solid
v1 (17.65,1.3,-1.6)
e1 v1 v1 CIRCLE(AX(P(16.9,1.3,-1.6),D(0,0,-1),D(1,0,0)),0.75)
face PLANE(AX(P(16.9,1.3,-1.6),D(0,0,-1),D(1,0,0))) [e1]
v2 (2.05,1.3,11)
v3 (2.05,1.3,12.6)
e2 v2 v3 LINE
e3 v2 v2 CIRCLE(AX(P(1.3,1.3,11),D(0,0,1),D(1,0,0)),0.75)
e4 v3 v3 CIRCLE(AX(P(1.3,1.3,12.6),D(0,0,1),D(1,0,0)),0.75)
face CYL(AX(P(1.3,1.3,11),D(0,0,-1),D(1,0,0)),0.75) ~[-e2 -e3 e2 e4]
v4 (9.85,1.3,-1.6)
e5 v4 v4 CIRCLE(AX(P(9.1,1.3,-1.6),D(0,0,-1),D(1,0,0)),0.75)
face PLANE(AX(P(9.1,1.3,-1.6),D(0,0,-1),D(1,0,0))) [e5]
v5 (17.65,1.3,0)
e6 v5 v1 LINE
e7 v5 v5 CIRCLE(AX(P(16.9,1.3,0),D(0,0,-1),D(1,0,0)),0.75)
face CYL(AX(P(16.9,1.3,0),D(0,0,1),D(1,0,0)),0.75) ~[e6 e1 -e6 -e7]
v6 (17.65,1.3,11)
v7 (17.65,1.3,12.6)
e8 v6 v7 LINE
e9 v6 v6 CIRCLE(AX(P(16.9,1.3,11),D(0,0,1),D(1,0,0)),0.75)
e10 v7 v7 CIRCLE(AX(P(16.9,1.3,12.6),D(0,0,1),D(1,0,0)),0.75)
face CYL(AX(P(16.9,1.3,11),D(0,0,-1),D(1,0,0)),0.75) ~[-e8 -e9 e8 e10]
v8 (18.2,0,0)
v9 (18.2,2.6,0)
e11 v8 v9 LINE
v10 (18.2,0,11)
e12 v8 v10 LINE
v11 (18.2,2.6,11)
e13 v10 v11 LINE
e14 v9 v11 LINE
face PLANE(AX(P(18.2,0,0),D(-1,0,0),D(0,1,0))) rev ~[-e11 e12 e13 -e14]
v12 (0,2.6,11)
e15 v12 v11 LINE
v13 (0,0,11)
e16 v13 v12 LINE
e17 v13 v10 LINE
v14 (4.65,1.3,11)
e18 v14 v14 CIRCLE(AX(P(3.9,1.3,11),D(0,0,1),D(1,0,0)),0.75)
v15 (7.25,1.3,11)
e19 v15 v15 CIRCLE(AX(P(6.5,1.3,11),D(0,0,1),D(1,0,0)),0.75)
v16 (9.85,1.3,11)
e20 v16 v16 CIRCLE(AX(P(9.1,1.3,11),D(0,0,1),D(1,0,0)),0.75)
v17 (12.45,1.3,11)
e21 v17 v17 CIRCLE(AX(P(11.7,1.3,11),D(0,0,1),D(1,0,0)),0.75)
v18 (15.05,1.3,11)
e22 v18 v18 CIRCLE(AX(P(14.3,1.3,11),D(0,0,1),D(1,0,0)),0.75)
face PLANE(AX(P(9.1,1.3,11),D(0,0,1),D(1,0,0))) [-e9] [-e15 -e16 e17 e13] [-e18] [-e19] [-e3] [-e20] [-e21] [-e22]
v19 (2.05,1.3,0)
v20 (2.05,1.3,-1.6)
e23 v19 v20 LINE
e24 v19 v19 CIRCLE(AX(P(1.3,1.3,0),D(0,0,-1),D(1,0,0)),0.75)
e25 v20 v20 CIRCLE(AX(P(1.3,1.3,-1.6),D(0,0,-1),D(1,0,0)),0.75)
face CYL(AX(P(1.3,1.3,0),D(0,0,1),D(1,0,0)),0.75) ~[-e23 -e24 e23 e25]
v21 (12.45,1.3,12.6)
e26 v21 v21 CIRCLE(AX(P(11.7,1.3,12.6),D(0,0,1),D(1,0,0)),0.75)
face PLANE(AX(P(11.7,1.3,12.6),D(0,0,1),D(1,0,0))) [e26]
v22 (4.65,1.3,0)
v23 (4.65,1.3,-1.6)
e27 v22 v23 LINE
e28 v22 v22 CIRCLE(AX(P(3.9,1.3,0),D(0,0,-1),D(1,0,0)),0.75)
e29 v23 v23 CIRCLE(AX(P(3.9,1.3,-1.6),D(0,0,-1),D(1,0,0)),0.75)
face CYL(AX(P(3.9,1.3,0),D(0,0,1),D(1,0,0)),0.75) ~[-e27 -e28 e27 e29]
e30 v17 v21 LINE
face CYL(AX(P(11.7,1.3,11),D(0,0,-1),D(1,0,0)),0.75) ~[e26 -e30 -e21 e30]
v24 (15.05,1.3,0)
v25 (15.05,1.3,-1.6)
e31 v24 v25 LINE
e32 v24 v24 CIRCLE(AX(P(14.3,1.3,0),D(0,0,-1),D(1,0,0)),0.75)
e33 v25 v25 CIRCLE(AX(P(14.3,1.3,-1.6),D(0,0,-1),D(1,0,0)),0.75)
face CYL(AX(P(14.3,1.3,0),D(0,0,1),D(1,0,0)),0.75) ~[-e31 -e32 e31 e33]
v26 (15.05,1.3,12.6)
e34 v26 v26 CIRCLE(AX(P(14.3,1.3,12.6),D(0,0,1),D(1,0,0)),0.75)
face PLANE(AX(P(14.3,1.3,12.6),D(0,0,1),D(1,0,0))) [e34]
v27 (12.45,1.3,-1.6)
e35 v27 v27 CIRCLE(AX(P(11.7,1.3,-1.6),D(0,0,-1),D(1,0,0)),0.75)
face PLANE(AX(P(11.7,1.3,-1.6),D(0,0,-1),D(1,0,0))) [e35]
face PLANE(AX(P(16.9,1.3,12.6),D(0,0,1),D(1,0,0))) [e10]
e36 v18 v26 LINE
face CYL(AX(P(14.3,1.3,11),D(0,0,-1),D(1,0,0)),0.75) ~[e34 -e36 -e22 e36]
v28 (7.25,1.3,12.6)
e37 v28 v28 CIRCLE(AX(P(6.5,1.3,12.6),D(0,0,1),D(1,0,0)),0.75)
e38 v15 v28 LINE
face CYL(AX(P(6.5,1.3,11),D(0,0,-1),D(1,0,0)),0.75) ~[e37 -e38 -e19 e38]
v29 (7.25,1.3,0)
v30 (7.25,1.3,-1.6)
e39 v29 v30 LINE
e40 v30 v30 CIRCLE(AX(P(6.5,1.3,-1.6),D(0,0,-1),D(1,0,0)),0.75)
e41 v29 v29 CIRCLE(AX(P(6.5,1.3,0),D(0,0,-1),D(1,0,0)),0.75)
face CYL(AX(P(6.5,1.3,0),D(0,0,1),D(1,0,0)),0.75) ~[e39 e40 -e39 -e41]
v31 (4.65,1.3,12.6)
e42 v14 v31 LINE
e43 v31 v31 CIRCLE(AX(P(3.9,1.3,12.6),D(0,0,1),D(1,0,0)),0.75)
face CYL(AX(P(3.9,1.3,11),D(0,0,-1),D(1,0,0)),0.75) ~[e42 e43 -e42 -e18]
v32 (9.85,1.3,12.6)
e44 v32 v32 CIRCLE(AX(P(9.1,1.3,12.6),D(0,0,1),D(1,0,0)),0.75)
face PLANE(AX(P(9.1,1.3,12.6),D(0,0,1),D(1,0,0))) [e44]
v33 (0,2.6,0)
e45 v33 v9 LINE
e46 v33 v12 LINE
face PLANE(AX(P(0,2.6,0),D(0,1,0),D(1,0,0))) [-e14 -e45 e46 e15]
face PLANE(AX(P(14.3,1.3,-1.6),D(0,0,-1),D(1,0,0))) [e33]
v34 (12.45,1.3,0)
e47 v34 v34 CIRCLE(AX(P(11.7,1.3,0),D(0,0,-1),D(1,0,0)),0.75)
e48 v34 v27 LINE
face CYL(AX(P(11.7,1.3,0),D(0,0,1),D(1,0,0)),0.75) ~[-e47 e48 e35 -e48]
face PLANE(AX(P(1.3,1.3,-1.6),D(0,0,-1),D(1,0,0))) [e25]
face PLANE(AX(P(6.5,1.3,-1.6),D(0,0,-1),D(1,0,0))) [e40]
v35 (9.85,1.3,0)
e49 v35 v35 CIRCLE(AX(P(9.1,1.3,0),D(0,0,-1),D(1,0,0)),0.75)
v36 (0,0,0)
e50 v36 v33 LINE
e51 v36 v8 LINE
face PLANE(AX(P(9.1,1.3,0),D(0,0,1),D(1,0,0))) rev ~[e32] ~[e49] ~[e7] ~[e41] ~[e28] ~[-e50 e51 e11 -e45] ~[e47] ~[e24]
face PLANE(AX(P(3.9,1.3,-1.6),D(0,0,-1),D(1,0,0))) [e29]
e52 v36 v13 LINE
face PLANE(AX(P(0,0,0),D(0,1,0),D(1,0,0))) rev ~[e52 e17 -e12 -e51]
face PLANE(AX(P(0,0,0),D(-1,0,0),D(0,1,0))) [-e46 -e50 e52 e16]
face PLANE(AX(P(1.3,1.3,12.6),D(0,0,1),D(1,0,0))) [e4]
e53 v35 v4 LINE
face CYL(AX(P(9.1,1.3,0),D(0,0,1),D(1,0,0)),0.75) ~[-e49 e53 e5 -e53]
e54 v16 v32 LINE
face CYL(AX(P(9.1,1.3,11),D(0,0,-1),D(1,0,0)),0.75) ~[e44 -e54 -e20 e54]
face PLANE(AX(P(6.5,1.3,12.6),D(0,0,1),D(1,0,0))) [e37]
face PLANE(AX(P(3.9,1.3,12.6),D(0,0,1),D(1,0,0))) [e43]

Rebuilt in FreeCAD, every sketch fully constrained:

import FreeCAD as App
import Part
import Sketcher
from FreeCAD import Vector


def add_polygon(sketch, points):
    """Adds a closed chain of lines whose ends are joined by coincident constraints."""
    first, n = sketch.GeometryCount, len(points)
    for a, b in zip(points, points[1:] + points[:1]):
        sketch.addGeometry(Part.LineSegment(App.Vector(*a, 0), App.Vector(*b, 0)), False)
    for i in range(n):
        sketch.addConstraint(Sketcher.Constraint("Coincident", first + i, 2, first + (i + 1) % n, 1))

doc = App.newDocument("Part")
body = doc.addObject("PartDesign::Body", "Body")

sketch1 = doc.addObject("Sketcher::SketchObject", "Sketch")
body.addObject(sketch1)
sketch1.AttachmentSupport = (doc.XY_Plane, [""])
sketch1.MapMode = "FlatFace"
add_polygon(sketch1, [(0, 2.6), (0, 0), (18.2, 0), (18.2, 2.6)])
sketch1.addConstraint([
    Sketcher.Constraint("Vertical", 0),
    Sketcher.Constraint("Horizontal", 1),
    Sketcher.Constraint("Vertical", 2),
    Sketcher.Constraint("Horizontal", 3),
    Sketcher.Constraint("Coincident", 0, 2, -1, 1),
    Sketcher.Constraint("DistanceX", 1, 1, 1, 2, 18.2),
    Sketcher.Constraint("DistanceY", 0, 2, 0, 1, 2.6),
])
pad1 = doc.addObject("PartDesign::Pad", "Pad")
body.addObject(pad1)
pad1.Profile = sketch1
pad1.Length = 11

sketch2 = doc.addObject("Sketcher::SketchObject", "Sketch001")
body.addObject(sketch2)
sketch2.AttachmentSupport = (doc.XY_Plane, [""])
sketch2.MapMode = "FlatFace"
sketch2.AttachmentOffset = App.Placement(Vector(0, 0, 11), App.Rotation())
sketch2.addGeometry([
    Part.Circle(Vector(9.1, 1.3, 0), Vector(0, 0, 1), 0.75),
    Part.Circle(Vector(1.3, 1.3, 0), Vector(0, 0, 1), 0.75),
    Part.Circle(Vector(3.9, 1.3, 0), Vector(0, 0, 1), 0.75),
    Part.Circle(Vector(6.5, 1.3, 0), Vector(0, 0, 1), 0.75),
    Part.Circle(Vector(11.7, 1.3, 0), Vector(0, 0, 1), 0.75),
    Part.Circle(Vector(14.3, 1.3, 0), Vector(0, 0, 1), 0.75),
    Part.Circle(Vector(16.9, 1.3, 0), Vector(0, 0, 1), 0.75),
], False)
sketch2.addConstraint([
    Sketcher.Constraint("Equal", 0, 1),
    Sketcher.Constraint("Equal", 1, 2),
    Sketcher.Constraint("Equal", 2, 3),
    Sketcher.Constraint("Equal", 3, 4),
    Sketcher.Constraint("Equal", 4, 5),
    Sketcher.Constraint("Equal", 5, 6),
    Sketcher.Constraint("Horizontal", 0, 3, 1, 3),
    Sketcher.Constraint("Horizontal", 1, 3, 2, 3),
    Sketcher.Constraint("Horizontal", 2, 3, 3, 3),
    Sketcher.Constraint("Horizontal", 3, 3, 4, 3),
    Sketcher.Constraint("Horizontal", 4, 3, 5, 3),
    Sketcher.Constraint("Horizontal", 5, 3, 6, 3),
    Sketcher.Constraint("Diameter", 0, 1.5),
    Sketcher.Constraint("DistanceX", 1, 3, 5, 3, 13.0),
    Sketcher.Constraint("DistanceX", 2, 3, 6, 3, 13.0),
    Sketcher.Constraint("DistanceX", -1, 1, 0, 3, 9.1),
    Sketcher.Constraint("DistanceY", -1, 1, 0, 3, 1.3),
    Sketcher.Constraint("DistanceX", -1, 1, 1, 3, 1.3),
    Sketcher.Constraint("DistanceX", -1, 1, 2, 3, 3.9),
    Sketcher.Constraint("DistanceX", -1, 1, 3, 3, 6.5),
    Sketcher.Constraint("DistanceX", -1, 1, 4, 3, 11.7),
])
pad2 = doc.addObject("PartDesign::Pad", "Pad001")
body.addObject(pad2)
pad2.Profile = sketch2
pad2.Length = 1.6

sketch3 = doc.addObject("Sketcher::SketchObject", "Sketch002")
body.addObject(sketch3)
sketch3.AttachmentSupport = (doc.XY_Plane, [""])
sketch3.MapMode = "FlatFace"
sketch3.addGeometry([
    Part.Circle(Vector(9.1, 1.3, 0), Vector(0, 0, 1), 0.75),
    Part.Circle(Vector(1.3, 1.3, 0), Vector(0, 0, 1), 0.75),
    Part.Circle(Vector(3.9, 1.3, 0), Vector(0, 0, 1), 0.75),
    Part.Circle(Vector(6.5, 1.3, 0), Vector(0, 0, 1), 0.75),
    Part.Circle(Vector(11.7, 1.3, 0), Vector(0, 0, 1), 0.75),
    Part.Circle(Vector(14.3, 1.3, 0), Vector(0, 0, 1), 0.75),
    Part.Circle(Vector(16.9, 1.3, 0), Vector(0, 0, 1), 0.75),
], False)
sketch3.addConstraint([
    Sketcher.Constraint("Equal", 0, 1),
    Sketcher.Constraint("Equal", 1, 2),
    Sketcher.Constraint("Equal", 2, 3),
    Sketcher.Constraint("Equal", 3, 4),
    Sketcher.Constraint("Equal", 4, 5),
    Sketcher.Constraint("Equal", 5, 6),
    Sketcher.Constraint("Horizontal", 0, 3, 1, 3),
    Sketcher.Constraint("Horizontal", 1, 3, 2, 3),
    Sketcher.Constraint("Horizontal", 2, 3, 3, 3),
    Sketcher.Constraint("Horizontal", 3, 3, 4, 3),
    Sketcher.Constraint("Horizontal", 4, 3, 5, 3),
    Sketcher.Constraint("Horizontal", 5, 3, 6, 3),
    Sketcher.Constraint("Diameter", 0, 1.5),
    Sketcher.Constraint("DistanceX", 1, 3, 5, 3, 13.0),
    Sketcher.Constraint("DistanceX", 2, 3, 6, 3, 13.0),
    Sketcher.Constraint("DistanceX", -1, 1, 0, 3, 9.1),
    Sketcher.Constraint("DistanceY", -1, 1, 0, 3, 1.3),
    Sketcher.Constraint("DistanceX", -1, 1, 1, 3, 1.3),
    Sketcher.Constraint("DistanceX", -1, 1, 2, 3, 3.9),
    Sketcher.Constraint("DistanceX", -1, 1, 3, 3, 6.5),
    Sketcher.Constraint("DistanceX", -1, 1, 4, 3, 11.7),
])
pad3 = doc.addObject("PartDesign::Pad", "Pad002")
body.addObject(pad3)
pad3.Profile = sketch3
pad3.Length = 1.6
pad3.Reversed = True

doc.recompute()
